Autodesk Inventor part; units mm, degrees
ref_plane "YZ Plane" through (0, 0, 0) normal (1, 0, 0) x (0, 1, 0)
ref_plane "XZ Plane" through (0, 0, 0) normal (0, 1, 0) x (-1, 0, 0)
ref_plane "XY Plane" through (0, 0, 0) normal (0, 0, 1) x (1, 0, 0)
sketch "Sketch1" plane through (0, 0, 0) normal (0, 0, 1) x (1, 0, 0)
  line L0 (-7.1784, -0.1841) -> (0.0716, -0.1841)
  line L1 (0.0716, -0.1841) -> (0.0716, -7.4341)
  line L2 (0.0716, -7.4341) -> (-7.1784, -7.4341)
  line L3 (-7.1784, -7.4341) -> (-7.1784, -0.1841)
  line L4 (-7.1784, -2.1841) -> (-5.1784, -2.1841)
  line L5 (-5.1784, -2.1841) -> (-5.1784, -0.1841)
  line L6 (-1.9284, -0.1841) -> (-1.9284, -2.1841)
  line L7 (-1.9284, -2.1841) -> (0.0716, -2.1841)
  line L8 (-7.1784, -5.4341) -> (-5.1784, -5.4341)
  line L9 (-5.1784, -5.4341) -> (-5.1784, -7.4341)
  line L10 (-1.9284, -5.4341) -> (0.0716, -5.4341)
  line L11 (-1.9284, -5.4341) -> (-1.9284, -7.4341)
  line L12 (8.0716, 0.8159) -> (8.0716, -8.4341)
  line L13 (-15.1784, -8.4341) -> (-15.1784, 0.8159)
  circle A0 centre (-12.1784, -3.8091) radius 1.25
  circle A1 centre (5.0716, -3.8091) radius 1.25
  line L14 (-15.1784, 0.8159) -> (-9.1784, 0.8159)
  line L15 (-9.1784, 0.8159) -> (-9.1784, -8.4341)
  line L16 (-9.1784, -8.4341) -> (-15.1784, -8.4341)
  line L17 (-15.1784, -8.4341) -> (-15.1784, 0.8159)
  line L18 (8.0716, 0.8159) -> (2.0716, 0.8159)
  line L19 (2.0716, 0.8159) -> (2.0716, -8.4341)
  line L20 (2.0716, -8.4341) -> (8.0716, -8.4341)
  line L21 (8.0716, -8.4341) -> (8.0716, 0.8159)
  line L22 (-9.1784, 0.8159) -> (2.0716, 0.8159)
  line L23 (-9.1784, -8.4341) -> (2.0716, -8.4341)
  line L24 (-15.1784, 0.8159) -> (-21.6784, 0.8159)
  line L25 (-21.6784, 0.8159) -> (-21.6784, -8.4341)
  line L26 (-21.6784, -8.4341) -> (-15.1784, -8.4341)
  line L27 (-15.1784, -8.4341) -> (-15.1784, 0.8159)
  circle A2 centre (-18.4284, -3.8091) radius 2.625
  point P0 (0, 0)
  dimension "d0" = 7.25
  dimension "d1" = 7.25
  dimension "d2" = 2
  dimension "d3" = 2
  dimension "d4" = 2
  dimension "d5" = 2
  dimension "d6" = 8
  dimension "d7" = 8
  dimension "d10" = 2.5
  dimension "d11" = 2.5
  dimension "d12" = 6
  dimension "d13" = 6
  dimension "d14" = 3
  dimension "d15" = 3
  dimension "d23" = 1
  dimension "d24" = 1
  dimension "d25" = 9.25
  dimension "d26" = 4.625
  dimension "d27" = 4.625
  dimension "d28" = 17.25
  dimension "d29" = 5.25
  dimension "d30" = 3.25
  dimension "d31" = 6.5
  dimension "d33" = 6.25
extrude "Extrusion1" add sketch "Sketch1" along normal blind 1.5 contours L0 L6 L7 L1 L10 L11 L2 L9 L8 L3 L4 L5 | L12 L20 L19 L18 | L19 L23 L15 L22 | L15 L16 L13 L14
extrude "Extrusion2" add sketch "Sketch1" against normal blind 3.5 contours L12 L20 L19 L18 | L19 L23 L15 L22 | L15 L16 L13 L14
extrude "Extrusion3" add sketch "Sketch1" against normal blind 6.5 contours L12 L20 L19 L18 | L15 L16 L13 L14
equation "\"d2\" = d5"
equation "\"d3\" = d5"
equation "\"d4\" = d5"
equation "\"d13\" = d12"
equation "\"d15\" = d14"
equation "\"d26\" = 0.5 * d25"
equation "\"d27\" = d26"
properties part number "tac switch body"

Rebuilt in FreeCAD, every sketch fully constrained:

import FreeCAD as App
import Part
import Sketcher
Q = App.Units.Quantity

doc = App.newDocument("Part")
body = doc.addObject("PartDesign::Body", "Body")

# Sketch on XY plane
sketch1 = doc.addObject("Sketcher::SketchObject", "Sketch")
body.addObject(sketch1)
sketch1.AttachmentSupport = (doc.XY_Plane, [""])
sketch1.MapMode = "FlatFace"
sketch1.addGeometry(Part.LineSegment(App.Vector(8.0716, -8.4341, 0), App.Vector(8.0716, 0.8159, 0)), False)
sketch1.addGeometry(Part.LineSegment(App.Vector(8.0716, 0.8159, 0), App.Vector(-15.1784, 0.8159, 0)), False)
sketch1.addGeometry(Part.LineSegment(App.Vector(-15.1784, 0.8159, 0), App.Vector(-15.1784, -8.4341, 0)), False)
sketch1.addGeometry(Part.LineSegment(App.Vector(-15.1784, -8.4341, 0), App.Vector(8.0716, -8.4341, 0)), False)
sketch1.addGeometry(Part.LineSegment(App.Vector(-1.9284, -2.1841, 0), App.Vector(-1.9284, -0.1841, 0)), False)
sketch1.addGeometry(Part.LineSegment(App.Vector(-1.9284, -0.1841, 0), App.Vector(0.0716, -0.1841, 0)), False)
sketch1.addGeometry(Part.LineSegment(App.Vector(0.0716, -0.1841, 0), App.Vector(0.0716, -2.1841, 0)), False)
sketch1.addGeometry(Part.LineSegment(App.Vector(0.0716, -2.1841, 0), App.Vector(-1.9284, -2.1841, 0)), False)
sketch1.addGeometry(Part.LineSegment(App.Vector(-1.9284, -5.4341, 0), App.Vector(0.0716, -5.4341, 0)), False)
sketch1.addGeometry(Part.LineSegment(App.Vector(0.0716, -5.4341, 0), App.Vector(0.0716, -7.4341, 0)), False)
sketch1.addGeometry(Part.LineSegment(App.Vector(0.0716, -7.4341, 0), App.Vector(-1.9284, -7.4341, 0)), False)
sketch1.addGeometry(Part.LineSegment(App.Vector(-1.9284, -7.4341, 0), App.Vector(-1.9284, -5.4341, 0)), False)
sketch1.addGeometry(Part.LineSegment(App.Vector(-5.1784, -5.4341, 0), App.Vector(-5.1784, -7.4341, 0)), False)
sketch1.addGeometry(Part.LineSegment(App.Vector(-5.1784, -7.4341, 0), App.Vector(-7.1784, -7.4341, 0)), False)
sketch1.addGeometry(Part.LineSegment(App.Vector(-7.1784, -7.4341, 0), App.Vector(-7.1784, -5.4341, 0)), False)
sketch1.addGeometry(Part.LineSegment(App.Vector(-7.1784, -5.4341, 0), App.Vector(-5.1784, -5.4341, 0)), False)
sketch1.addGeometry(Part.LineSegment(App.Vector(-5.1784, -2.1841, 0), App.Vector(-7.1784, -2.1841, 0)), False)
sketch1.addGeometry(Part.LineSegment(App.Vector(-7.1784, -2.1841, 0), App.Vector(-7.1784, -0.1841, 0)), False)
sketch1.addGeometry(Part.LineSegment(App.Vector(-7.1784, -0.1841, 0), App.Vector(-5.1784, -0.1841, 0)), False)
sketch1.addGeometry(Part.LineSegment(App.Vector(-5.1784, -0.1841, 0), App.Vector(-5.1784, -2.1841, 0)), False)
sketch1.addGeometry(Part.Circle(App.Vector(5.0716, -3.8091, 0), App.Vector(0, 0, 1), 1.25), False)
sketch1.addGeometry(Part.Circle(App.Vector(-12.1784, -3.8091, 0), App.Vector(0, 0, 1), 1.25), False)
sketch1.addConstraint(Sketcher.Constraint("Coincident", 0, 2, 1, 1))
sketch1.addConstraint(Sketcher.Constraint("Coincident", 1, 2, 2, 1))
sketch1.addConstraint(Sketcher.Constraint("Coincident", 2, 2, 3, 1))
sketch1.addConstraint(Sketcher.Constraint("Coincident", 3, 2, 0, 1))
sketch1.addConstraint(Sketcher.Constraint("Coincident", 4, 2, 5, 1))
sketch1.addConstraint(Sketcher.Constraint("Coincident", 5, 2, 6, 1))
sketch1.addConstraint(Sketcher.Constraint("Coincident", 6, 2, 7, 1))
sketch1.addConstraint(Sketcher.Constraint("Coincident", 7, 2, 4, 1))
sketch1.addConstraint(Sketcher.Constraint("Coincident", 8, 2, 9, 1))
sketch1.addConstraint(Sketcher.Constraint("Coincident", 9, 2, 10, 1))
sketch1.addConstraint(Sketcher.Constraint("Coincident", 10, 2, 11, 1))
sketch1.addConstraint(Sketcher.Constraint("Coincident", 11, 2, 8, 1))
sketch1.addConstraint(Sketcher.Constraint("Coincident", 12, 2, 13, 1))
sketch1.addConstraint(Sketcher.Constraint("Coincident", 13, 2, 14, 1))
sketch1.addConstraint(Sketcher.Constraint("Coincident", 14, 2, 15, 1))
sketch1.addConstraint(Sketcher.Constraint("Coincident", 15, 2, 12, 1))
sketch1.addConstraint(Sketcher.Constraint("Coincident", 16, 2, 17, 1))
sketch1.addConstraint(Sketcher.Constraint("Coincident", 17, 2, 18, 1))
sketch1.addConstraint(Sketcher.Constraint("Coincident", 18, 2, 19, 1))
sketch1.addConstraint(Sketcher.Constraint("Coincident", 19, 2, 16, 1))
sketch1.addConstraint(Sketcher.Constraint("Vertical", 0))
sketch1.addConstraint(Sketcher.Constraint("Horizontal", 1))
sketch1.addConstraint(Sketcher.Constraint("Vertical", 2))
sketch1.addConstraint(Sketcher.Constraint("Horizontal", 3))
sketch1.addConstraint(Sketcher.Constraint("Vertical", 4))
sketch1.addConstraint(Sketcher.Constraint("Horizontal", 5))
sketch1.addConstraint(Sketcher.Constraint("Vertical", 6))
sketch1.addConstraint(Sketcher.Constraint("Horizontal", 7))
sketch1.addConstraint(Sketcher.Constraint("Horizontal", 8))
sketch1.addConstraint(Sketcher.Constraint("Vertical", 9))
sketch1.addConstraint(Sketcher.Constraint("Horizontal", 10))
sketch1.addConstraint(Sketcher.Constraint("Vertical", 11))
sketch1.addConstraint(Sketcher.Constraint("Vertical", 12))
sketch1.addConstraint(Sketcher.Constraint("Horizontal", 13))
sketch1.addConstraint(Sketcher.Constraint("Vertical", 14))
sketch1.addConstraint(Sketcher.Constraint("Horizontal", 15))
sketch1.addConstraint(Sketcher.Constraint("Horizontal", 16))
sketch1.addConstraint(Sketcher.Constraint("Vertical", 17))
sketch1.addConstraint(Sketcher.Constraint("Horizontal", 18))
sketch1.addConstraint(Sketcher.Constraint("Vertical", 19))
sketch1.addConstraint(Sketcher.Constraint("Equal", 20, 21))
sketch1.addConstraint(Sketcher.Constraint("Horizontal", 20, 3, 21, 3))
sketch1.addConstraint(Sketcher.Constraint("Horizontal", 10, 2, 12, 2))
sketch1.addConstraint(Sketcher.Constraint("Horizontal", 11, 2, 14, 2))
sketch1.addConstraint(Sketcher.Constraint("Horizontal", 7, 2, 16, 2))
sketch1.addConstraint(Sketcher.Constraint("Horizontal", 5, 2, 17, 2))
sketch1.addConstraint(Sketcher.Constraint("Vertical", 6, 2, 8, 2))
sketch1.addConstraint(Sketcher.Constraint("Vertical", 7, 2, 10, 2))
sketch1.addConstraint(Sketcher.Constraint("Vertical", 14, 2, 16, 2))
sketch1.addConstraint(Sketcher.Constraint("Vertical", 15, 2, 18, 2))
sketch1.addConstraint(Sketcher.Constraint("Equal", 10, 13))
sketch1.addConstraint(Sketcher.Constraint("Equal", 18, 4))
sketch1.addConstraint(Sketcher.Constraint("Equal", 6, 9))
sketch1.addConstraint(Sketcher.Constraint("Diameter", 20, Q("2.5 mm")))
sketch1.addConstraint(Sketcher.Constraint("DistanceX", 5, 1, 5, 2, Q("2 mm")))
sketch1.addConstraint(Sketcher.Constraint("DistanceX", 20, 3, 0, 2, Q("3 mm")))
sketch1.addConstraint(Sketcher.Constraint("DistanceX", 1, 2, 21, 3, Q("3 mm")))
sketch1.addConstraint(Sketcher.Constraint("DistanceY", 4, 2, 0, 2, Q("1 mm")))
sketch1.addConstraint(Sketcher.Constraint("DistanceX", 5, 2, 0, 2, Q("8 mm")))
sketch1.addConstraint(Sketcher.Constraint("DistanceY", 0, 1, 0, 2, Q("9.25 mm")))
sketch1.addConstraint(Sketcher.Constraint("DistanceX", 21, 3, 20, 3, Q("17.25 mm")))
sketch1.addConstraint(Sketcher.Constraint("DistanceY", 8, 2, 6, 2, Q("3.25 mm")))
sketch1.addConstraint(Sketcher.Constraint("DistanceX", 12, 2, 10, 2, Q("3.25 mm")))
sketch1.addConstraint(Sketcher.Constraint("DistanceY", 20, 3, 0, 2, Q("4.625 mm")))
sketch1.addConstraint(Sketcher.Constraint("DistanceY", 20, 3, -1, 1, Q("3.809 mm")))
sketch1.addConstraint(Sketcher.Constraint("DistanceX", -1, 1, 20, 3, Q("5.0716 mm")))
pad1 = doc.addObject("PartDesign::Pad", "Pad")
body.addObject(pad1)
pad1.Profile = sketch1
pad1.Length = 1.5

# Sketch on XY plane
sketch2 = doc.addObject("Sketcher::SketchObject", "Sketch001")
body.addObject(sketch2)
sketch2.AttachmentSupport = (doc.XY_Plane, [""])
sketch2.MapMode = "FlatFace"
sketch2.addGeometry(Part.LineSegment(App.Vector(8.0716, -8.4341, 0), App.Vector(8.0716, 0.8159, 0)), False)
sketch2.addGeometry(Part.LineSegment(App.Vector(8.0716, 0.8159, 0), App.Vector(-15.1784, 0.8159, 0)), False)
sketch2.addGeometry(Part.LineSegment(App.Vector(-15.1784, 0.8159, 0), App.Vector(-15.1784, -8.4341, 0)), False)
sketch2.addGeometry(Part.LineSegment(App.Vector(-15.1784, -8.4341, 0), App.Vector(8.0716, -8.4341, 0)), False)
sketch2.addGeometry(Part.Circle(App.Vector(5.0716, -3.8091, 0), App.Vector(0, 0, 1), 1.25), False)
sketch2.addGeometry(Part.LineSegment(App.Vector(-7.1784, -0.1841, 0), App.Vector(0.0716, -0.1841, 0)), False)
sketch2.addGeometry(Part.LineSegment(App.Vector(0.0716, -0.1841, 0), App.Vector(0.0716, -7.4341, 0)), False)
sketch2.addGeometry(Part.LineSegment(App.Vector(0.0716, -7.4341, 0), App.Vector(-7.1784, -7.4341, 0)), False)
sketch2.addGeometry(Part.LineSegment(App.Vector(-7.1784, -7.4341, 0), App.Vector(-7.1784, -0.1841, 0)), False)
sketch2.addGeometry(Part.Circle(App.Vector(-12.1784, -3.8091, 0), App.Vector(0, 0, 1), 1.25), False)
sketch2.addConstraint(Sketcher.Constraint("Coincident", 0, 2, 1, 1))
sketch2.addConstraint(Sketcher.Constraint("Coincident", 1, 2, 2, 1))
sketch2.addConstraint(Sketcher.Constraint("Coincident", 2, 2, 3, 1))
sketch2.addConstraint(Sketcher.Constraint("Coincident", 3, 2, 0, 1))
sketch2.addConstraint(Sketcher.Constraint("Coincident", 5, 2, 6, 1))
sketch2.addConstraint(Sketcher.Constraint("Coincident", 6, 2, 7, 1))
sketch2.addConstraint(Sketcher.Constraint("Coincident", 7, 2, 8, 1))
sketch2.addConstraint(Sketcher.Constraint("Coincident", 8, 2, 5, 1))
sketch2.addConstraint(Sketcher.Constraint("Vertical", 0))
sketch2.addConstraint(Sketcher.Constraint("Horizontal", 1))
sketch2.addConstraint(Sketcher.Constraint("Vertical", 2))
sketch2.addConstraint(Sketcher.Constraint("Horizontal", 3))
sketch2.addConstraint(Sketcher.Constraint("Horizontal", 5))
sketch2.addConstraint(Sketcher.Constraint("Vertical", 6))
sketch2.addConstraint(Sketcher.Constraint("Horizontal", 7))
sketch2.addConstraint(Sketcher.Constraint("Vertical", 8))
sketch2.addConstraint(Sketcher.Constraint("Equal", 4, 9))
sketch2.addConstraint(Sketcher.Constraint("Horizontal", 4, 3, 9, 3))
sketch2.addConstraint(Sketcher.Constraint("Equal", 7, 6))
sketch2.addConstraint(Sketcher.Constraint("Diameter", 4, Q("2.5 mm")))
sketch2.addConstraint(Sketcher.Constraint("DistanceX", 4, 3, 0, 2, Q("3 mm")))
sketch2.addConstraint(Sketcher.Constraint("DistanceX", 1, 2, 9, 3, Q("3 mm")))
sketch2.addConstraint(Sketcher.Constraint("DistanceX", 5, 2, 0, 2, Q("8 mm")))
sketch2.addConstraint(Sketcher.Constraint("DistanceY", 5, 2, 0, 2, Q("1 mm")))
sketch2.addConstraint(Sketcher.Constraint("DistanceY", 3, 2, 6, 2, Q("1 mm")))
sketch2.addConstraint(Sketcher.Constraint("DistanceX", 2, 2, 7, 2, Q("8 mm")))
sketch2.addConstraint(Sketcher.Constraint("DistanceX", 5, 1, 5, 2, Q("7.25 mm")))
sketch2.addConstraint(Sketcher.Constraint("DistanceY", 4, 3, 0, 2, Q("4.625 mm")))
sketch2.addConstraint(Sketcher.Constraint("DistanceY", 4, 3, -1, 1, Q("3.809 mm")))
sketch2.addConstraint(Sketcher.Constraint("DistanceX", -1, 1, 4, 3, Q("5.0716 mm")))
pad2 = doc.addObject("PartDesign::Pad", "Pad001")
body.addObject(pad2)
pad2.Profile = sketch2
pad2.Length = 3.5
pad2.Reversed = True

# Sketch on XY plane
sketch3 = doc.addObject("Sketcher::SketchObject", "Sketch002")
body.addObject(sketch3)
sketch3.AttachmentSupport = (doc.XY_Plane, [""])
sketch3.MapMode = "FlatFace"
sketch3.addGeometry(Part.LineSegment(App.Vector(8.0716, -8.4341, 0), App.Vector(8.0716, 0.8159, 0)), False)
sketch3.addGeometry(Part.LineSegment(App.Vector(8.0716, 0.8159, 0), App.Vector(2.0716, 0.8159, 0)), False)
sketch3.addGeometry(Part.LineSegment(App.Vector(2.0716, 0.8159, 0), App.Vector(2.0716, -8.4341, 0)), False)
sketch3.addGeometry(Part.LineSegment(App.Vector(2.0716, -8.4341, 0), App.Vector(8.0716, -8.4341, 0)), False)
sketch3.addGeometry(Part.Circle(App.Vector(5.0716, -3.8091, 0), App.Vector(0, 0, 1), 1.25), False)
sketch3.addGeometry(Part.LineSegment(App.Vector(-9.1784, -8.4341, 0), App.Vector(-9.1784, 0.8159, 0)), False)
sketch3.addGeometry(Part.LineSegment(App.Vector(-9.1784, 0.8159, 0), App.Vector(-15.1784, 0.8159, 0)), False)
sketch3.addGeometry(Part.LineSegment(App.Vector(-15.1784, 0.8159, 0), App.Vector(-15.1784, -8.4341, 0)), False)
sketch3.addGeometry(Part.LineSegment(App.Vector(-15.1784, -8.4341, 0), App.Vector(-9.1784, -8.4341, 0)), False)
sketch3.addGeometry(Part.Circle(App.Vector(-12.1784, -3.8091, 0), App.Vector(0, 0, 1), 1.25), False)
sketch3.addConstraint(Sketcher.Constraint("Coincident", 0, 2, 1, 1))
sketch3.addConstraint(Sketcher.Constraint("Coincident", 1, 2, 2, 1))
sketch3.addConstraint(Sketcher.Constraint("Coincident", 2, 2, 3, 1))
sketch3.addConstraint(Sketcher.Constraint("Coincident", 3, 2, 0, 1))
sketch3.addConstraint(Sketcher.Constraint("Coincident", 5, 2, 6, 1))
sketch3.addConstraint(Sketcher.Constraint("Coincident", 6, 2, 7, 1))
sketch3.addConstraint(Sketcher.Constraint("Coincident", 7, 2, 8, 1))
sketch3.addConstraint(Sketcher.Constraint("Coincident", 8, 2, 5, 1))
sketch3.addConstraint(Sketcher.Constraint("Vertical", 0))
sketch3.addConstraint(Sketcher.Constraint("Horizontal", 1))
sketch3.addConstraint(Sketcher.Constraint("Vertical", 2))
sketch3.addConstraint(Sketcher.Constraint("Horizontal", 3))
sketch3.addConstraint(Sketcher.Constraint("Vertical", 5))
sketch3.addConstraint(Sketcher.Constraint("Horizontal", 6))
sketch3.addConstraint(Sketcher.Constraint("Vertical", 7))
sketch3.addConstraint(Sketcher.Constraint("Horizontal", 8))
sketch3.addConstraint(Sketcher.Constraint("Equal", 4, 9))
sketch3.addConstraint(Sketcher.Constraint("Horizontal", 4, 3, 9, 3))
sketch3.addConstraint(Sketcher.Constraint("Horizontal", 1, 2, 5, 2))
sketch3.addConstraint(Sketcher.Constraint("Horizontal", 3, 2, 7, 2))
sketch3.addConstraint(Sketcher.Constraint("Equal", 3, 6))
sketch3.addConstraint(Sketcher.Constraint("Diameter", 4, Q("2.5 mm")))
sketch3.addConstraint(Sketcher.Constraint("DistanceX", 1, 2, 1, 1, Q("6 mm")))
sketch3.addConstraint(Sketcher.Constraint("DistanceX", 4, 3, 0, 2, Q("3 mm")))
sketch3.addConstraint(Sketcher.Constraint("DistanceX", 9, 3, 5, 2, Q("3 mm")))
sketch3.addConstraint(Sketcher.Constraint("DistanceY", 0, 1, 0, 2, Q("9.25 mm")))
sketch3.addConstraint(Sketcher.Constraint("DistanceX", 9, 3, 4, 3, Q("17.25 mm")))
sketch3.addConstraint(Sketcher.Constraint("DistanceY", 4, 3, 0, 2, Q("4.625 mm")))
sketch3.addConstraint(Sketcher.Constraint("DistanceY", 4, 3, -1, 1, Q("3.809 mm")))
sketch3.addConstraint(Sketcher.Constraint("DistanceX", -1, 1, 4, 3, Q("5.0716 mm")))
pad3 = doc.addObject("PartDesign::Pad", "Pad002")
body.addObject(pad3)
pad3.Profile = sketch3
pad3.Length = 6.5
pad3.Reversed = True

doc.recompute()
